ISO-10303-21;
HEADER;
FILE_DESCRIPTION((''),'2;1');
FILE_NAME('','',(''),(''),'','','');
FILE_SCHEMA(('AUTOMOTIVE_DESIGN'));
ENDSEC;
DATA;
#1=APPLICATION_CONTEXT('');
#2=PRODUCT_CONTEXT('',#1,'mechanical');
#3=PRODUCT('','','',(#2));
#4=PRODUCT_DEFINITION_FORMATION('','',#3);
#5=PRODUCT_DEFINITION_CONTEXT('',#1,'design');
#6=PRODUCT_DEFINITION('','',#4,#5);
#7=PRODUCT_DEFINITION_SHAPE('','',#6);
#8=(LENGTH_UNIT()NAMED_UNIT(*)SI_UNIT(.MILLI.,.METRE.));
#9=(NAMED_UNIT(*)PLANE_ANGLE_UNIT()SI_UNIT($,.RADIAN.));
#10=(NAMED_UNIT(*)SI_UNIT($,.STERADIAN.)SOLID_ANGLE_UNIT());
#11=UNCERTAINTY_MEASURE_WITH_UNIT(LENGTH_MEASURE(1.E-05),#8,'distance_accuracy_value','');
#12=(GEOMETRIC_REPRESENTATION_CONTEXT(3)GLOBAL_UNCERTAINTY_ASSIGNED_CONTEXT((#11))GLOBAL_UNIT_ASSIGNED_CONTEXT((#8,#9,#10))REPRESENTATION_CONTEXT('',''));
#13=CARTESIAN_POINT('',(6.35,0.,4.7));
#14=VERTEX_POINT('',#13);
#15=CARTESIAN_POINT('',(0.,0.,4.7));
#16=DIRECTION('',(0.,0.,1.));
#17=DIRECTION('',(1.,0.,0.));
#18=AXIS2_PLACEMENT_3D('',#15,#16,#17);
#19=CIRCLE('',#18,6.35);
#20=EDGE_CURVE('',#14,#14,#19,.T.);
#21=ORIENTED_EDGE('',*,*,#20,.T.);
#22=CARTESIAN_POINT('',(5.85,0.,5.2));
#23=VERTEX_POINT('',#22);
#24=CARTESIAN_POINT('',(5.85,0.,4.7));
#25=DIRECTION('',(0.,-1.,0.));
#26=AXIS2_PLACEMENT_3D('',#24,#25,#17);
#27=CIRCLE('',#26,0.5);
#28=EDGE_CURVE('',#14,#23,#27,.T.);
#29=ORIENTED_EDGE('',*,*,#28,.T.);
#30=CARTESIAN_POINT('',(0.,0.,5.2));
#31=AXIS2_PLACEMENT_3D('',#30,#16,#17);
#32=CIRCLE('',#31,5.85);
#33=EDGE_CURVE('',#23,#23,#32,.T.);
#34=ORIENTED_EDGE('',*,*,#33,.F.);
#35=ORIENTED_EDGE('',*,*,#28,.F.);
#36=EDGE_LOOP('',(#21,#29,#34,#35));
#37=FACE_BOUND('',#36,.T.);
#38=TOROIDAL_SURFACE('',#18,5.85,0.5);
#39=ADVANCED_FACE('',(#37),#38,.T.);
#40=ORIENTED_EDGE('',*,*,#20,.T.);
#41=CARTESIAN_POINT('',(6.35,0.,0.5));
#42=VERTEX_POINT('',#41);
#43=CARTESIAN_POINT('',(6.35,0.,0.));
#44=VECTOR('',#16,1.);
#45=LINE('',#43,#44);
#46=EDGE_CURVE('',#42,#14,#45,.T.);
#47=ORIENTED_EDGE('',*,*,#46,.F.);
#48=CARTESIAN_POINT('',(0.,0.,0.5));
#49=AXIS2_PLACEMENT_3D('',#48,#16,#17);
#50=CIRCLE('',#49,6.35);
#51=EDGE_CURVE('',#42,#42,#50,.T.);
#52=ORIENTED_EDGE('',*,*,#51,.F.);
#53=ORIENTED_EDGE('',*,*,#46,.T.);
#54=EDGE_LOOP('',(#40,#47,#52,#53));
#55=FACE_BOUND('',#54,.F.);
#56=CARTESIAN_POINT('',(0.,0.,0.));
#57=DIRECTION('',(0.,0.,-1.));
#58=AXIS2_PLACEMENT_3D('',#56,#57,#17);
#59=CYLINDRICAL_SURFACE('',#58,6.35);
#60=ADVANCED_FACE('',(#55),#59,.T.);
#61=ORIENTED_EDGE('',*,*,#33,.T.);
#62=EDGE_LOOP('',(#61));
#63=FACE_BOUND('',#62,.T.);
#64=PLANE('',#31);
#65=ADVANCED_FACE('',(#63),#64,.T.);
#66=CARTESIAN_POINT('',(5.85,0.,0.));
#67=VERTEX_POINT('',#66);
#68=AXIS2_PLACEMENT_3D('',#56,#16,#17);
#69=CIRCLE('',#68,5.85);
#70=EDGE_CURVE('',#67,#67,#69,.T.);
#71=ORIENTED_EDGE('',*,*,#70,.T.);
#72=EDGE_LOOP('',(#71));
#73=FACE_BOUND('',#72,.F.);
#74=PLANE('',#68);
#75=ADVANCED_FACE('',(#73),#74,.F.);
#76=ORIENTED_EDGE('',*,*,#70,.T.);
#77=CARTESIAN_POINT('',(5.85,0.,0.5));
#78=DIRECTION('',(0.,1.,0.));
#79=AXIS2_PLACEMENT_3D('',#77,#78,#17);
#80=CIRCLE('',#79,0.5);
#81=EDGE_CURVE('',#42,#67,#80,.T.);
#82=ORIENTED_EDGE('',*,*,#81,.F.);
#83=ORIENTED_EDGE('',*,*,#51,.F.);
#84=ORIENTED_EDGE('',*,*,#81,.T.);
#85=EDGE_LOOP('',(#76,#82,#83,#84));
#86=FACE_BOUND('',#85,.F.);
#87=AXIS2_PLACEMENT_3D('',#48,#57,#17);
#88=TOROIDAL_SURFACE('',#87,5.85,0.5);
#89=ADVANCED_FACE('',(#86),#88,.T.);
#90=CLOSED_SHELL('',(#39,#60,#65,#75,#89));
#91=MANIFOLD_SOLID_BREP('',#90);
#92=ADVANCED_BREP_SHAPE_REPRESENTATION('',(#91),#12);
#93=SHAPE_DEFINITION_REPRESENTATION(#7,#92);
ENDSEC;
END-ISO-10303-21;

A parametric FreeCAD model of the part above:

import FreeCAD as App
import Part
import Sketcher


def edges_at(feature, points):
    """Names of the edges that pass closest to the given points."""
    edges = feature.Shape.Edges
    near = lambda p: min(range(len(edges)), key=lambda i: edges[i].distToShape(Part.Vertex(*p))[0])
    return sorted({f"Edge{near(p) + 1}" for p in points})

doc = App.newDocument("Part")
body = doc.addObject("PartDesign::Body", "Body")

sketch1 = body.newObject("Sketcher::SketchObject", "Sketch")
sketch1.AttachmentSupport = (doc.getObject("XY_Plane"), [""])
sketch1.MapMode = "FlatFace"
sketch1.addGeometry(Part.Circle(App.Vector(0, 0, 0), App.Vector(0, 0, 1), 6), False)
sketch1.addConstraint([
    Sketcher.Constraint("Coincident", 0, 3, -1, 1),
    Sketcher.Constraint("Diameter", 0, 12.7),
])
pad1 = body.newObject("PartDesign::Pad", "Pad")
pad1.Profile = sketch1
pad1.Length = 5.2
doc.recompute()

fillet = body.newObject("PartDesign::Fillet", "Fillet")
fillet.Base = (pad1, edges_at(pad1, [(-6.35, 0, 5.2), (-6.35, 0, 0)]))
fillet.Radius = 0.5

doc.recompute()
